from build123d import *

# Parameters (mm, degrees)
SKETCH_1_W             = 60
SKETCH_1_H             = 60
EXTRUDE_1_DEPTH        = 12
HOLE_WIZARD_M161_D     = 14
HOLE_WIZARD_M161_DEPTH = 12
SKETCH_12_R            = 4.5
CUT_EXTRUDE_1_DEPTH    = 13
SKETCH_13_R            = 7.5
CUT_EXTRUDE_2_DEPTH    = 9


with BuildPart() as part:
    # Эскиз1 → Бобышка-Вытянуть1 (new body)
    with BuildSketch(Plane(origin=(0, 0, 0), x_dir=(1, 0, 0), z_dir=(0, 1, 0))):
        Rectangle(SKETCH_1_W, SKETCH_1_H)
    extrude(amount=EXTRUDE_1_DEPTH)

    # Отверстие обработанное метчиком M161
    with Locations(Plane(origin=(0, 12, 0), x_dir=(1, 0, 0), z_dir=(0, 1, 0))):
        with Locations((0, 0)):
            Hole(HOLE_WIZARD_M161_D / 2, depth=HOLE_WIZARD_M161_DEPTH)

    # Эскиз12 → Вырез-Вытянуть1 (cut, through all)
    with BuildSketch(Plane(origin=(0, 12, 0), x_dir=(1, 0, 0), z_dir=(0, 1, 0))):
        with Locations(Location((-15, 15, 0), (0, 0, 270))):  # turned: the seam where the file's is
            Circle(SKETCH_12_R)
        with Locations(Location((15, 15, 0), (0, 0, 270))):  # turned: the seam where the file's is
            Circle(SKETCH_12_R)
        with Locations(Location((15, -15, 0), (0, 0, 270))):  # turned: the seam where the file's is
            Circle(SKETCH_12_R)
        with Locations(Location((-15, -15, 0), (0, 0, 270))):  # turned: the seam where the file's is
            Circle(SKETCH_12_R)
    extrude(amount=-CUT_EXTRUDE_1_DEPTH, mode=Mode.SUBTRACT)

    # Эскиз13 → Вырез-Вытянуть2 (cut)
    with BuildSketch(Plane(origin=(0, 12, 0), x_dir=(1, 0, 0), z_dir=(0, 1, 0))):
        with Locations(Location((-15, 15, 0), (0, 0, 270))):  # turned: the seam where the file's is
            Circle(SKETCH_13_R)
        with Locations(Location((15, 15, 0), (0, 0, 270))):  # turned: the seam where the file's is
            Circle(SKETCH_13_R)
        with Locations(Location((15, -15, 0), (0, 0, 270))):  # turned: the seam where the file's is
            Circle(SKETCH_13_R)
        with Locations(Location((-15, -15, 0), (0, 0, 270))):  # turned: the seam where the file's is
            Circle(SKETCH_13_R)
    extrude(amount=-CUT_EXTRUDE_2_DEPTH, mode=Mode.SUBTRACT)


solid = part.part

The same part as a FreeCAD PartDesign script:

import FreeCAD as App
import Part
import Sketcher
from FreeCAD import Vector
Q = App.Units.Quantity

doc = App.newDocument("Part")
body = doc.addObject("PartDesign::Body", "Body")

sketch1 = doc.addObject("Sketcher::SketchObject", "Sketch")
body.addObject(sketch1)
sketch1.AttachmentSupport = (doc.XZ_Plane, [""])
sketch1.MapMode = "FlatFace"
sketch1.addGeometry([
    Part.LineSegment(Vector(-30, -30, 0), Vector(-30, 30, 0)),
    Part.LineSegment(Vector(-30, 30, 0), Vector(30, 30, 0)),
    Part.LineSegment(Vector(30, 30, 0), Vector(30, -30, 0)),
    Part.LineSegment(Vector(30, -30, 0), Vector(-30, -30, 0)),
], False)
sketch1.addConstraint([
    Sketcher.Constraint("Coincident", 0, 2, 1, 1),
    Sketcher.Constraint("Coincident", 1, 2, 2, 1),
    Sketcher.Constraint("Coincident", 2, 2, 3, 1),
    Sketcher.Constraint("Coincident", 3, 2, 0, 1),
    Sketcher.Constraint("Vertical", 0),
    Sketcher.Constraint("Horizontal", 1),
    Sketcher.Constraint("Vertical", 2),
    Sketcher.Constraint("Horizontal", 3),
    Sketcher.Constraint("Symmetric", 0, 2, 2, 2, -1, 1),
    Sketcher.Constraint("Equal", 3, 0),
    Sketcher.Constraint("DistanceX", 1, 1, 1, 2, Q("60 mm")),
])
pad1 = doc.addObject("PartDesign::Pad", "Pad")
body.addObject(pad1)
pad1.Profile = sketch1
pad1.Length = 12
pad1.Reversed = True

sketch2 = doc.addObject("Sketcher::SketchObject", "Sketch001")
body.addObject(sketch2)
sketch2.AttachmentSupport = (doc.XZ_Plane, [""])
sketch2.MapMode = "FlatFace"
sketch2.AttachmentOffset = App.Placement(Vector(0, 0, -12), App.Rotation())
sketch2.addGeometry(Part.Circle(Vector(0, 0, 0), Vector(0, 0, 1), 7), False)
sketch2.addConstraint([
    Sketcher.Constraint("Coincident", 0, 3, -1, 1),
    Sketcher.Constraint("Diameter", 0, Q("14 mm")),
])
doc.recompute()
hole = doc.addObject("PartDesign::Hole", "Hole")
body.addObject(hole)
hole.Profile = sketch2
hole.ThreadType = "None"
hole.Diameter = 14
hole.DepthType = "Dimension"
hole.Depth = 12
hole.DrillPoint = "Flat"
hole.Reversed = True

sketch3 = doc.addObject("Sketcher::SketchObject", "Sketch002")
body.addObject(sketch3)
sketch3.AttachmentSupport = (doc.XZ_Plane, [""])
sketch3.MapMode = "FlatFace"
sketch3.AttachmentOffset = App.Placement(Vector(0, 0, -12), App.Rotation())
sketch3.addGeometry([
    Part.Circle(Vector(-15, -15, 0), Vector(0, 0, 1), 4.5),
    Part.Circle(Vector(15, -15, 0), Vector(0, 0, 1), 4.5),
    Part.Circle(Vector(15, 15, 0), Vector(0, 0, 1), 4.5),
    Part.Circle(Vector(-15, 15, 0), Vector(0, 0, 1), 4.5),
], False)
sketch3.addConstraint([
    Sketcher.Constraint("Equal", 0, 1),
    Sketcher.Constraint("Equal", 1, 2),
    Sketcher.Constraint("Equal", 2, 3),
    Sketcher.Constraint("Symmetric", 0, 3, 2, 3, -1, 1),
    Sketcher.Constraint("Symmetric", 1, 3, 3, 3, -1, 1),
    Sketcher.Constraint("Symmetric", 0, 3, 1, 3, -2),
    Sketcher.Constraint("Diameter", 0, Q("9 mm")),
    Sketcher.Constraint("DistanceX", 0, 3, -1, 1, Q("15 mm")),
    Sketcher.Constraint("DistanceY", 0, 3, -1, 1, Q("15 mm")),
])
pocket1 = doc.addObject("PartDesign::Pocket", "Pocket")
body.addObject(pocket1)
pocket1.Profile = sketch3
pocket1.Type = "ThroughAll"
pocket1.Reversed = True

sketch4 = doc.addObject("Sketcher::SketchObject", "Sketch003")
body.addObject(sketch4)
sketch4.AttachmentSupport = (doc.XZ_Plane, [""])
sketch4.MapMode = "FlatFace"
sketch4.AttachmentOffset = App.Placement(Vector(0, 0, -12), App.Rotation())
sketch4.addGeometry([
    Part.Circle(Vector(-15, -15, 0), Vector(0, 0, 1), 7.5),
    Part.Circle(Vector(15, -15, 0), Vector(0, 0, 1), 7.5),
    Part.Circle(Vector(15, 15, 0), Vector(0, 0, 1), 7.5),
    Part.Circle(Vector(-15, 15, 0), Vector(0, 0, 1), 7.5),
], False)
sketch4.addConstraint([
    Sketcher.Constraint("Equal", 0, 1),
    Sketcher.Constraint("Equal", 1, 2),
    Sketcher.Constraint("Equal", 2, 3),
    Sketcher.Constraint("Symmetric", 0, 3, 2, 3, -1, 1),
    Sketcher.Constraint("Symmetric", 1, 3, 3, 3, -1, 1),
    Sketcher.Constraint("Symmetric", 0, 3, 1, 3, -2),
    Sketcher.Constraint("Diameter", 0, Q("15 mm")),
    Sketcher.Constraint("DistanceX", 0, 3, -1, 1, Q("15 mm")),
    Sketcher.Constraint("DistanceY", 0, 3, -1, 1, Q("15 mm")),
])
pocket2 = doc.addObject("PartDesign::Pocket", "Pocket001")
body.addObject(pocket2)
pocket2.Profile = sketch4
pocket2.Length = 9
pocket2.Reversed = True

doc.recompute()
